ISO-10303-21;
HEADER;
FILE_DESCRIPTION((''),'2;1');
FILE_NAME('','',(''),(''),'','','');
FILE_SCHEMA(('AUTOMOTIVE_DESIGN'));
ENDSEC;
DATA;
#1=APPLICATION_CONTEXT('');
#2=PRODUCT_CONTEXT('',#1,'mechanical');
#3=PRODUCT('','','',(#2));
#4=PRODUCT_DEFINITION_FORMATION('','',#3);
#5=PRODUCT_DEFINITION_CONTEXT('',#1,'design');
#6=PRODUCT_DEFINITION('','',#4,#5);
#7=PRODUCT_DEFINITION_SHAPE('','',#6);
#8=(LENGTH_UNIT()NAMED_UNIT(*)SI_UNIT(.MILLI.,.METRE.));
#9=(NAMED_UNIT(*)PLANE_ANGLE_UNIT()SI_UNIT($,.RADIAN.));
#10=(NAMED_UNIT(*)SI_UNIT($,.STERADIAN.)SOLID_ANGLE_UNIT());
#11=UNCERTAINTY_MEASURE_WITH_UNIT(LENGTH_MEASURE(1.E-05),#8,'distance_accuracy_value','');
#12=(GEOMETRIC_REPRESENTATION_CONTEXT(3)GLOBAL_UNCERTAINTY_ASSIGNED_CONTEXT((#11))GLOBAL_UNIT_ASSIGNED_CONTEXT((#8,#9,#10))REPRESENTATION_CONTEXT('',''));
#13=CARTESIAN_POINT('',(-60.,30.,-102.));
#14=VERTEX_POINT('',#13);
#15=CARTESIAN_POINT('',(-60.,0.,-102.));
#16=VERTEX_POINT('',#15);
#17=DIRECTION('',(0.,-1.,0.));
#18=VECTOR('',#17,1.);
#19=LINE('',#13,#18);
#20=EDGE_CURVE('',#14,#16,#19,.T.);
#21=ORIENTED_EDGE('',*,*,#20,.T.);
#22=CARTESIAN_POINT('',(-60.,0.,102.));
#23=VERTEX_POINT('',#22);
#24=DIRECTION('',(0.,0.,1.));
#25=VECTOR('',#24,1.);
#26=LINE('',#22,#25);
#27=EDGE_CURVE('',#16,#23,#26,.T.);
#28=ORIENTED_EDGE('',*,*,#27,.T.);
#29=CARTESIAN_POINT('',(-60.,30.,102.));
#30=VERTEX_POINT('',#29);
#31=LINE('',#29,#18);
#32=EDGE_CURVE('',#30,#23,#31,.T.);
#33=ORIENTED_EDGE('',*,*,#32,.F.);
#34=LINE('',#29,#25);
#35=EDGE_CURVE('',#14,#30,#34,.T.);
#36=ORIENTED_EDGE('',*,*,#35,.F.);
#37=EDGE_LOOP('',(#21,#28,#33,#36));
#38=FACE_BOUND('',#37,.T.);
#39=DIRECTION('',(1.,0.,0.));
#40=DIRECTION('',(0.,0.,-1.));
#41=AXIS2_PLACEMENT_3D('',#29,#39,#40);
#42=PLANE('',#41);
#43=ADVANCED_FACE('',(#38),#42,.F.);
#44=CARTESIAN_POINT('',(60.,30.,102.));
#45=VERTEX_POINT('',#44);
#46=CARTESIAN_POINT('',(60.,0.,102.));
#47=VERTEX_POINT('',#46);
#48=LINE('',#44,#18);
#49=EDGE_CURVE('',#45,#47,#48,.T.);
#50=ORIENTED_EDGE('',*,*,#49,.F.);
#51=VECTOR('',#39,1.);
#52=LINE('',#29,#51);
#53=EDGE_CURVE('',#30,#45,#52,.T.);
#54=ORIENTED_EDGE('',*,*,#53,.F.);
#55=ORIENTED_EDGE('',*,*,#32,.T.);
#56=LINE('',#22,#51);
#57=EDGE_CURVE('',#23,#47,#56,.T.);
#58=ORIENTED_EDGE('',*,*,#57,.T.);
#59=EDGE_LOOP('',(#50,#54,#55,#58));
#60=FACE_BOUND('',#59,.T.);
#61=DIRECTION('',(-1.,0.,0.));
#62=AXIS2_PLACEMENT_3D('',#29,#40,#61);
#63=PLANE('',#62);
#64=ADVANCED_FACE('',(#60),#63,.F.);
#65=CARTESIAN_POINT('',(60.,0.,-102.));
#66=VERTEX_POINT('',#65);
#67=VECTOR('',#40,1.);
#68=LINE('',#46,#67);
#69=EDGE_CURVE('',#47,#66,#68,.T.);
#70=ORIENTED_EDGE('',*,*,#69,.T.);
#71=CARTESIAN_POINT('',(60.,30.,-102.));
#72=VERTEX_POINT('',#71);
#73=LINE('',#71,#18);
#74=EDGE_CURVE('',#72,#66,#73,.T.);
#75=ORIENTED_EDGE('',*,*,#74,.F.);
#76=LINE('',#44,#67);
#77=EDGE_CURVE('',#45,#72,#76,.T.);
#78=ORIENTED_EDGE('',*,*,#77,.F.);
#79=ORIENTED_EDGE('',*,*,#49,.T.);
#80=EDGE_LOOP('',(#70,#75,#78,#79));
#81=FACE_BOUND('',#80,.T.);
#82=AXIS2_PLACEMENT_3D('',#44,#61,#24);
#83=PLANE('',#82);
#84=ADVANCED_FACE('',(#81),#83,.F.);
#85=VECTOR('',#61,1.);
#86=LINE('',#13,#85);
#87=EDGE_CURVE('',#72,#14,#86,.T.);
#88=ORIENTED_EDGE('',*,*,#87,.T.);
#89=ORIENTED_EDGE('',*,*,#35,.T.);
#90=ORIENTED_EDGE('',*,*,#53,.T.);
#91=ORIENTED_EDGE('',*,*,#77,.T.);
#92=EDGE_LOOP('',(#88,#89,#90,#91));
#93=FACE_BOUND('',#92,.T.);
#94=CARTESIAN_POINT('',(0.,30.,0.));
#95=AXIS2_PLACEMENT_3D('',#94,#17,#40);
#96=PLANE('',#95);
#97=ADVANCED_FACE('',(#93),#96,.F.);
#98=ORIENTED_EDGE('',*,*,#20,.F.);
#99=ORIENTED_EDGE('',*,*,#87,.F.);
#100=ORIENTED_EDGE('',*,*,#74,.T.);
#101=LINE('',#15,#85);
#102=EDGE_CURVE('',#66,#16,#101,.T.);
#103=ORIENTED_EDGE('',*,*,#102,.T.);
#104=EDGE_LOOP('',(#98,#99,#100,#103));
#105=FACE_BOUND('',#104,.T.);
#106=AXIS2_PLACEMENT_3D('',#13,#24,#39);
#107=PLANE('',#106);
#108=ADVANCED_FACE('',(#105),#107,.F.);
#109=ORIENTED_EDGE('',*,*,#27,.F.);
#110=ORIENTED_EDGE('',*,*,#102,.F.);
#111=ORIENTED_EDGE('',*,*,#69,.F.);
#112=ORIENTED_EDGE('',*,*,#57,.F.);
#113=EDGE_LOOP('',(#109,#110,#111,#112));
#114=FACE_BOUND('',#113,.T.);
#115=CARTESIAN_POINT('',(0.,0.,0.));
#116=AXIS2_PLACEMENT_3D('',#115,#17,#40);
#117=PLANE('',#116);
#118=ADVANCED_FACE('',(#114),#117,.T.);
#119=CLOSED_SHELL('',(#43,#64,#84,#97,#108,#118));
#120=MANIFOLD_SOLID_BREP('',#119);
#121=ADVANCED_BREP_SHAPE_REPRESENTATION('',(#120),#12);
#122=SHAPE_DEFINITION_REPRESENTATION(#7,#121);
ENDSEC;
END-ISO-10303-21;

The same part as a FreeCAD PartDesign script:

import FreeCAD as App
import Part
import Sketcher

V = App.Vector
Q = App.Units.Quantity


def add_polygon(sketch, points):
    """Adds a closed chain of lines whose ends are joined by coincident constraints."""
    first, n = sketch.GeometryCount, len(points)
    for a, b in zip(points, points[1:] + points[:1]):
        sketch.addGeometry(Part.LineSegment(App.Vector(*a, 0), App.Vector(*b, 0)), False)
    for i in range(n):
        sketch.addConstraint(Sketcher.Constraint("Coincident", first + i, 2, first + (i + 1) % n, 1))

doc = App.newDocument("Part")
body = doc.addObject("PartDesign::Body", "Body")

sketch1 = body.newObject("Sketcher::SketchObject", "Sketch")
sketch1.AttachmentSupport = (doc.getObject("XZ_Plane"), [""])
sketch1.MapMode = "FlatFace"
add_polygon(sketch1, [(-60, -102), (-60, 102), (60, 102), (60, -102)])
sketch1.addConstraint(Sketcher.Constraint("Vertical", 0))
sketch1.addConstraint(Sketcher.Constraint("Horizontal", 1))
sketch1.addConstraint(Sketcher.Constraint("Vertical", 2))
sketch1.addConstraint(Sketcher.Constraint("Horizontal", 3))
sketch1.addConstraint(Sketcher.Constraint("Symmetric", 0, 2, 2, 2, -1, 1))
sketch1.addConstraint(Sketcher.Constraint("DistanceX", 1, 1, 1, 2, Q("120 mm")))
sketch1.addConstraint(Sketcher.Constraint("DistanceY", 0, 1, 0, 2, Q("204 mm")))
pad1 = body.newObject("PartDesign::Pad", "Pad")
pad1.Profile = sketch1
pad1.Length = 30
pad1.Reversed = True

doc.recompute()
